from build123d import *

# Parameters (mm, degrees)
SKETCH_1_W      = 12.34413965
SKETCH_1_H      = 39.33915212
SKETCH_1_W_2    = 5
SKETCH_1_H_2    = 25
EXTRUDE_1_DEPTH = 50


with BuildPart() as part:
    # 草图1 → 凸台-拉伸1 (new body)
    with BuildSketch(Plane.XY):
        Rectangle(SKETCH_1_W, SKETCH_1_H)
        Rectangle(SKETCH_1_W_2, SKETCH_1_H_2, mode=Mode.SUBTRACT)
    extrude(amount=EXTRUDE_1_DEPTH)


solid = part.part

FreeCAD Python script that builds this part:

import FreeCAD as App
import Part
import Sketcher
from FreeCAD import Vector
Q = App.Units.Quantity

doc = App.newDocument("Part")
body = doc.addObject("PartDesign::Body", "Body")

# Sketch on XY plane
sketch1 = doc.addObject("Sketcher::SketchObject", "Sketch")
body.addObject(sketch1)
sketch1.AttachmentSupport = (doc.XY_Plane, [""])
sketch1.MapMode = "FlatFace"
sketch1.addGeometry([
    Part.LineSegment(Vector(-6, 20, 0), Vector(-6, -20, 0)),  # 0
    Part.LineSegment(Vector(-6, -20, 0), Vector(6, -20, 0)),  # 1
    Part.LineSegment(Vector(6, -20, 0), Vector(6, 20, 0)),  # 2
    Part.LineSegment(Vector(6, 20, 0), Vector(-6, 20, 0)),  # 3
    Part.LineSegment(Vector(2, -12, 0), Vector(-2, -12, 0)),  # 4
    Part.LineSegment(Vector(-2, -12, 0), Vector(-2, 12, 0)),  # 5
    Part.LineSegment(Vector(-2, 12, 0), Vector(2, 12, 0)),  # 6
    Part.LineSegment(Vector(2, 12, 0), Vector(2, -12, 0)),  # 7
], False)
sketch1.addConstraint([
    Sketcher.Constraint("Coincident", 0, 2, 1, 1),
    Sketcher.Constraint("Coincident", 1, 2, 2, 1),
    Sketcher.Constraint("Coincident", 2, 2, 3, 1),
    Sketcher.Constraint("Coincident", 3, 2, 0, 1),
    Sketcher.Constraint("Coincident", 4, 2, 5, 1),
    Sketcher.Constraint("Coincident", 5, 2, 6, 1),
    Sketcher.Constraint("Coincident", 6, 2, 7, 1),
    Sketcher.Constraint("Coincident", 7, 2, 4, 1),
    Sketcher.Constraint("Vertical", 0),
    Sketcher.Constraint("Horizontal", 1),
    Sketcher.Constraint("Vertical", 2),
    Sketcher.Constraint("Horizontal", 3),
    Sketcher.Constraint("Horizontal", 4),
    Sketcher.Constraint("Vertical", 5),
    Sketcher.Constraint("Horizontal", 6),
    Sketcher.Constraint("Vertical", 7),
    Sketcher.Constraint("Symmetric", 0, 2, 2, 2, -1, 1),
    Sketcher.Constraint("Symmetric", 4, 2, 6, 2, -1, 1),
    Sketcher.Constraint("DistanceX", 4, 2, 4, 1, Q("5 mm")),
    Sketcher.Constraint("DistanceY", 5, 1, 5, 2, Q("25 mm")),
    Sketcher.Constraint("DistanceX", 1, 1, 1, 2, Q("12.34414 mm")),
    Sketcher.Constraint("DistanceY", 0, 2, 0, 1, Q("39.339152 mm")),
])
pad1 = doc.addObject("PartDesign::Pad", "Pad")
body.addObject(pad1)
pad1.Profile = sketch1
pad1.Length = 50

doc.recompute()
